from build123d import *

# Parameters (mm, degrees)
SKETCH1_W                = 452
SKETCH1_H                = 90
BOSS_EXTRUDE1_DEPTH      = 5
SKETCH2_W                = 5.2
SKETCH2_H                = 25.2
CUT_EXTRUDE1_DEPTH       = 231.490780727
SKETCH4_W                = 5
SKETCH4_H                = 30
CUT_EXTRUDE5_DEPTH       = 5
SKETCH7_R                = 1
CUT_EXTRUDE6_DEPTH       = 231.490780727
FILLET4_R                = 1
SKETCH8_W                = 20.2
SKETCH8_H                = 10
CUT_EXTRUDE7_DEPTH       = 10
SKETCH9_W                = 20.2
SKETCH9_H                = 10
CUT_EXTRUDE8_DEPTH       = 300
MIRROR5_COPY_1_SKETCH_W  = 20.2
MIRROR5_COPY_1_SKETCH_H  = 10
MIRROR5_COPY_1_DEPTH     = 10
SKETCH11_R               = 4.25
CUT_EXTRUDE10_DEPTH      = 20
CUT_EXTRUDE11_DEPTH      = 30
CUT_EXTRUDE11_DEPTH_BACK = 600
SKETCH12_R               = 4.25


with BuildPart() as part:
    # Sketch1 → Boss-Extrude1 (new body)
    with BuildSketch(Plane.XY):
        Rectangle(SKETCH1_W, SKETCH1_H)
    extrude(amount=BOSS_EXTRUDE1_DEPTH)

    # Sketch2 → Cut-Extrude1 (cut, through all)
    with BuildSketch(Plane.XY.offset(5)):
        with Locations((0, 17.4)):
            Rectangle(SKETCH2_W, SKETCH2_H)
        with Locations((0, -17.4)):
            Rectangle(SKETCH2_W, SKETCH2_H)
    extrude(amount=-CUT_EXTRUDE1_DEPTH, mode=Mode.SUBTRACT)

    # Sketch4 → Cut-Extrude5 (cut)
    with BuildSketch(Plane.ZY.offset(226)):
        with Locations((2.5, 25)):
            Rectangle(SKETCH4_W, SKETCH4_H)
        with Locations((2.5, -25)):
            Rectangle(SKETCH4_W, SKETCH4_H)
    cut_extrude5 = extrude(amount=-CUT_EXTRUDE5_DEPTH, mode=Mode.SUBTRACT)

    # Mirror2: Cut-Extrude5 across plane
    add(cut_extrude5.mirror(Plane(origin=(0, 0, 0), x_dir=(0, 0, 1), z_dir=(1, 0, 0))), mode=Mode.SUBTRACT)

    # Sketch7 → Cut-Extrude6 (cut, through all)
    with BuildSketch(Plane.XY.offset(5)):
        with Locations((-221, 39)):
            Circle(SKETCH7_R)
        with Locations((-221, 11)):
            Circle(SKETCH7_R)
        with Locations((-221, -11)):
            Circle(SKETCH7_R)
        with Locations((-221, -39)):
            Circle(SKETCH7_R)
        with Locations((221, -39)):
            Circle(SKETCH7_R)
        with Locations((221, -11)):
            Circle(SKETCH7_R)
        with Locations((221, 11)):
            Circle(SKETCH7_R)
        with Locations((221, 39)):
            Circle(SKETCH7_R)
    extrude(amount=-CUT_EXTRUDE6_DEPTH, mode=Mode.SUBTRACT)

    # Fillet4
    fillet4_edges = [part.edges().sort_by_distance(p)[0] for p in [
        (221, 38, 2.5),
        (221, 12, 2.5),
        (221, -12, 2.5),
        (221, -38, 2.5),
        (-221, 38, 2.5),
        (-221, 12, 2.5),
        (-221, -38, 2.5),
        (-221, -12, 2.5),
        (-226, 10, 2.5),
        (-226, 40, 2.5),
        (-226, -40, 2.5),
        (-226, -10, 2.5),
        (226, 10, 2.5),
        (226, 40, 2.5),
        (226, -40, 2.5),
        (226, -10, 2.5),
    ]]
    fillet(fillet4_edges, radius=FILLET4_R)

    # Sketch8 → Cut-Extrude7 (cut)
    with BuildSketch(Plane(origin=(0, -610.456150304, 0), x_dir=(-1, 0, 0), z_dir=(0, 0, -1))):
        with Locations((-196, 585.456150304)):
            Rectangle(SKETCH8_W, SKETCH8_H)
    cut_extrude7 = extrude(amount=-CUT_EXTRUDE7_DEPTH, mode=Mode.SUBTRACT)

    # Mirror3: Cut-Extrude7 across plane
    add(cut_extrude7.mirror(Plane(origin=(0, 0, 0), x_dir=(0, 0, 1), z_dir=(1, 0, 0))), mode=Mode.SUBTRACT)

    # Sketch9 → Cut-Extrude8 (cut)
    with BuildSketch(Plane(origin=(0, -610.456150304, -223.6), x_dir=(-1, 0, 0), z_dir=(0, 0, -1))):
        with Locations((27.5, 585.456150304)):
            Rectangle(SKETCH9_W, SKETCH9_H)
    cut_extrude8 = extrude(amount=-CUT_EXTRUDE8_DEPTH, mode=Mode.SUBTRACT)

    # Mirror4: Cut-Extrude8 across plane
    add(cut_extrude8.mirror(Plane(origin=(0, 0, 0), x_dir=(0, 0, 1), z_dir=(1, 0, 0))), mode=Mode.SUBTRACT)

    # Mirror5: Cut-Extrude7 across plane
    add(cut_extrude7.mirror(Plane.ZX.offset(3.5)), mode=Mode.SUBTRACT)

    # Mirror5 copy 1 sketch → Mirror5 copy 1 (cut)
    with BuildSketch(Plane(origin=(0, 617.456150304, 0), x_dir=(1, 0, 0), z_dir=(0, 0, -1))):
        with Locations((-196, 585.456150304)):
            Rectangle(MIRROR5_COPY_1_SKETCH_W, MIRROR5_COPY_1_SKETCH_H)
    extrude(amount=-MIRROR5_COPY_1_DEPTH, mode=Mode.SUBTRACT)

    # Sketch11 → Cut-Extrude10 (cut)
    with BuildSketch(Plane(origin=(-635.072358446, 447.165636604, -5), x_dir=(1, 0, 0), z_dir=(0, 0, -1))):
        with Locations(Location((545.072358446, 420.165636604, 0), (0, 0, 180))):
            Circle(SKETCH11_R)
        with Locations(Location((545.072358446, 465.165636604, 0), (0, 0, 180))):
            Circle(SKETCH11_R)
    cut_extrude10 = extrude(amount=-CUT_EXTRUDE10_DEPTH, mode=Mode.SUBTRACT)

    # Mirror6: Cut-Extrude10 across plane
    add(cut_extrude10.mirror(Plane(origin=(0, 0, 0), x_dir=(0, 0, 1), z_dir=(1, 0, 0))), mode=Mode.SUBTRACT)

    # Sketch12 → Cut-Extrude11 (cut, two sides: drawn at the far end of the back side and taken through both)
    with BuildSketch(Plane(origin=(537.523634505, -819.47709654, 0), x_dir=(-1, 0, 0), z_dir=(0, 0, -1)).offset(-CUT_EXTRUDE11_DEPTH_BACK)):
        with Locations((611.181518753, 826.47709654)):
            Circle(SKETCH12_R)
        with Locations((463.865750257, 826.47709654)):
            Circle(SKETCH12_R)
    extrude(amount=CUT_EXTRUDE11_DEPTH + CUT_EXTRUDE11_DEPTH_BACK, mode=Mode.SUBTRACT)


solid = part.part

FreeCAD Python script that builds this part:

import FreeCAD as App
import Part
import Sketcher
from FreeCAD import Vector
Q = App.Units.Quantity


def edges_at(feature, points):
    """Names of the edges that pass closest to the given points."""
    edges = feature.Shape.Edges
    near = lambda p: min(range(len(edges)), key=lambda i: edges[i].distToShape(Part.Vertex(*p))[0])
    return sorted({f"Edge{near(p) + 1}" for p in points})

doc = App.newDocument("Part")
body = doc.addObject("PartDesign::Body", "Body")

# Sketch on XY plane
sketch1 = body.newObject("Sketcher::SketchObject", "Sketch")
sketch1.AttachmentSupport = (doc.getObject("XY_Plane"), [""])
sketch1.MapMode = "FlatFace"
sketch1.addGeometry(Part.LineSegment(Vector(-226, 45, 0), Vector(-226, -45, 0)), False)
sketch1.addGeometry(Part.LineSegment(Vector(-226, -45, 0), Vector(226, -45, 0)), False)
sketch1.addGeometry(Part.LineSegment(Vector(226, -45, 0), Vector(226, 45, 0)), False)
sketch1.addGeometry(Part.LineSegment(Vector(226, 45, 0), Vector(-226, 45, 0)), False)
sketch1.addConstraint(Sketcher.Constraint("Coincident", 0, 2, 1, 1))
sketch1.addConstraint(Sketcher.Constraint("Coincident", 1, 2, 2, 1))
sketch1.addConstraint(Sketcher.Constraint("Coincident", 2, 2, 3, 1))
sketch1.addConstraint(Sketcher.Constraint("Coincident", 3, 2, 0, 1))
sketch1.addConstraint(Sketcher.Constraint("Vertical", 0))
sketch1.addConstraint(Sketcher.Constraint("Horizontal", 1))
sketch1.addConstraint(Sketcher.Constraint("Vertical", 2))
sketch1.addConstraint(Sketcher.Constraint("Horizontal", 3))
sketch1.addConstraint(Sketcher.Constraint("Symmetric", 0, 2, 2, 2, -1, 1))
sketch1.addConstraint(Sketcher.Constraint("DistanceX", 1, 1, 1, 2, Q("452 mm")))
sketch1.addConstraint(Sketcher.Constraint("DistanceY", 0, 2, 0, 1, Q("90 mm")))
pad1 = body.newObject("PartDesign::Pad", "Pad")
pad1.Profile = sketch1
pad1.Length = 5

# Sketch on XY plane
sketch2 = body.newObject("Sketcher::SketchObject", "Sketch001")
sketch2.AttachmentSupport = (doc.getObject("XY_Plane"), [""])
sketch2.MapMode = "FlatFace"
sketch2.AttachmentOffset = App.Placement(Vector(0, 0, 5), App.Rotation())
sketch2.addGeometry(Part.LineSegment(Vector(-3, 30, 0), Vector(-3, 5, 0)), False)
sketch2.addGeometry(Part.LineSegment(Vector(-3, 5, 0), Vector(3, 5, 0)), False)
sketch2.addGeometry(Part.LineSegment(Vector(3, 5, 0), Vector(3, 30, 0)), False)
sketch2.addGeometry(Part.LineSegment(Vector(3, 30, 0), Vector(-3, 30, 0)), False)
sketch2.addGeometry(Part.LineSegment(Vector(-3, -5, 0), Vector(-3, -30, 0)), False)
sketch2.addGeometry(Part.LineSegment(Vector(-3, -30, 0), Vector(3, -30, 0)), False)
sketch2.addGeometry(Part.LineSegment(Vector(3, -30, 0), Vector(3, -5, 0)), False)
sketch2.addGeometry(Part.LineSegment(Vector(3, -5, 0), Vector(-3, -5, 0)), False)
sketch2.addConstraint(Sketcher.Constraint("Coincident", 0, 2, 1, 1))
sketch2.addConstraint(Sketcher.Constraint("Coincident", 1, 2, 2, 1))
sketch2.addConstraint(Sketcher.Constraint("Coincident", 2, 2, 3, 1))
sketch2.addConstraint(Sketcher.Constraint("Coincident", 3, 2, 0, 1))
sketch2.addConstraint(Sketcher.Constraint("Coincident", 4, 2, 5, 1))
sketch2.addConstraint(Sketcher.Constraint("Coincident", 5, 2, 6, 1))
sketch2.addConstraint(Sketcher.Constraint("Coincident", 6, 2, 7, 1))
sketch2.addConstraint(Sketcher.Constraint("Coincident", 7, 2, 4, 1))
sketch2.addConstraint(Sketcher.Constraint("Vertical", 0))
sketch2.addConstraint(Sketcher.Constraint("Horizontal", 1))
sketch2.addConstraint(Sketcher.Constraint("Vertical", 2))
sketch2.addConstraint(Sketcher.Constraint("Horizontal", 3))
sketch2.addConstraint(Sketcher.Constraint("Vertical", 4))
sketch2.addConstraint(Sketcher.Constraint("Horizontal", 5))
sketch2.addConstraint(Sketcher.Constraint("Vertical", 6))
sketch2.addConstraint(Sketcher.Constraint("Horizontal", 7))
sketch2.addConstraint(Sketcher.Constraint("Symmetric", 2, 2, 4, 2, -1, 1))
sketch2.addConstraint(Sketcher.Constraint("Symmetric", 0, 2, 6, 2, -1, 1))
sketch2.addConstraint(Sketcher.Constraint("Vertical", 3, 2, 4, 2))
sketch2.addConstraint(Sketcher.Constraint("DistanceX", 1, 1, 1, 2, Q("5.2 mm")))
sketch2.addConstraint(Sketcher.Constraint("DistanceY", 0, 2, 0, 1, Q("25.2 mm")))
sketch2.addConstraint(Sketcher.Constraint("DistanceY", -1, 1, 2, 2, Q("30 mm")))
pocket1 = body.newObject("PartDesign::Pocket", "Pocket")
pocket1.Profile = sketch2
pocket1.Type = "ThroughAll"

# Sketch on YZ plane
sketch3 = body.newObject("Sketcher::SketchObject", "Sketch002")
sketch3.AttachmentSupport = (doc.getObject("YZ_Plane"), [""])
sketch3.MapMode = "FlatFace"
sketch3.AttachmentOffset = App.Placement(Vector(0, 0, -226), App.Rotation())
sketch3.addGeometry(Part.LineSegment(Vector(40, 0, 0), Vector(10, 0, 0)), False)
sketch3.addGeometry(Part.LineSegment(Vector(10, 0, 0), Vector(10, 5, 0)), False)
sketch3.addGeometry(Part.LineSegment(Vector(10, 5, 0), Vector(40, 5, 0)), False)
sketch3.addGeometry(Part.LineSegment(Vector(40, 5, 0), Vector(40, 0, 0)), False)
sketch3.addGeometry(Part.LineSegment(Vector(-10, 0, 0), Vector(-40, 0, 0)), False)
sketch3.addGeometry(Part.LineSegment(Vector(-40, 0, 0), Vector(-40, 5, 0)), False)
sketch3.addGeometry(Part.LineSegment(Vector(-40, 5, 0), Vector(-10, 5, 0)), False)
sketch3.addGeometry(Part.LineSegment(Vector(-10, 5, 0), Vector(-10, 0, 0)), False)
sketch3.addConstraint(Sketcher.Constraint("Coincident", 0, 2, 1, 1))
sketch3.addConstraint(Sketcher.Constraint("Coincident", 1, 2, 2, 1))
sketch3.addConstraint(Sketcher.Constraint("Coincident", 2, 2, 3, 1))
sketch3.addConstraint(Sketcher.Constraint("Coincident", 3, 2, 0, 1))
sketch3.addConstraint(Sketcher.Constraint("Coincident", 4, 2, 5, 1))
sketch3.addConstraint(Sketcher.Constraint("Coincident", 5, 2, 6, 1))
sketch3.addConstraint(Sketcher.Constraint("Coincident", 6, 2, 7, 1))
sketch3.addConstraint(Sketcher.Constraint("Coincident", 7, 2, 4, 1))
sketch3.addConstraint(Sketcher.Constraint("Horizontal", 0))
sketch3.addConstraint(Sketcher.Constraint("Vertical", 1))
sketch3.addConstraint(Sketcher.Constraint("Horizontal", 2))
sketch3.addConstraint(Sketcher.Constraint("Vertical", 3))
sketch3.addConstraint(Sketcher.Constraint("Horizontal", 4))
sketch3.addConstraint(Sketcher.Constraint("Vertical", 5))
sketch3.addConstraint(Sketcher.Constraint("Horizontal", 6))
sketch3.addConstraint(Sketcher.Constraint("Vertical", 7))
sketch3.addConstraint(Sketcher.Constraint("Symmetric", 3, 2, 4, 2, -1, 1))
sketch3.addConstraint(Sketcher.Constraint("Symmetric", 1, 2, 6, 2, -2))
sketch3.addConstraint(Sketcher.Constraint("PointOnObject", 0, 2, -1))
sketch3.addConstraint(Sketcher.Constraint("DistanceX", 0, 2, 0, 1, Q("30 mm")))
sketch3.addConstraint(Sketcher.Constraint("DistanceY", 1, 1, 1, 2, Q("5 mm")))
sketch3.addConstraint(Sketcher.Constraint("DistanceX", -1, 1, 0, 2, Q("10 mm")))
pocket2 = body.newObject("PartDesign::Pocket", "Pocket001")
pocket2.Profile = sketch3
pocket2.Length = 5
pocket2.Reversed = True
doc.recompute()

mirrored = body.newObject("PartDesign::Mirrored", "Mirrored")
mirrored.Originals = [pocket2]
mirrored.MirrorPlane = (doc.getObject("YZ_Plane"), [""])
body.Tip = mirrored

# Sketch on XY plane
sketch4 = body.newObject("Sketcher::SketchObject", "Sketch003")
sketch4.AttachmentSupport = (doc.getObject("XY_Plane"), [""])
sketch4.MapMode = "FlatFace"
sketch4.AttachmentOffset = App.Placement(Vector(0, 0, 5), App.Rotation())
sketch4.addGeometry(Part.Circle(Vector(-221, 39, 0), Vector(0, 0, 1), 1), False)
sketch4.addGeometry(Part.Circle(Vector(-221, 11, 0), Vector(0, 0, 1), 1), False)
sketch4.addGeometry(Part.Circle(Vector(-221, -11, 0), Vector(0, 0, 1), 1), False)
sketch4.addGeometry(Part.Circle(Vector(-221, -39, 0), Vector(0, 0, 1), 1), False)
sketch4.addGeometry(Part.Circle(Vector(221, -39, 0), Vector(0, 0, 1), 1), False)
sketch4.addGeometry(Part.Circle(Vector(221, -11, 0), Vector(0, 0, 1), 1), False)
sketch4.addGeometry(Part.Circle(Vector(221, 11, 0), Vector(0, 0, 1), 1), False)
sketch4.addGeometry(Part.Circle(Vector(221, 39, 0), Vector(0, 0, 1), 1), False)
sketch4.addConstraint(Sketcher.Constraint("Equal", 0, 1))
sketch4.addConstraint(Sketcher.Constraint("Equal", 1, 2))
sketch4.addConstraint(Sketcher.Constraint("Equal", 2, 3))
sketch4.addConstraint(Sketcher.Constraint("Equal", 3, 4))
sketch4.addConstraint(Sketcher.Constraint("Equal", 4, 5))
sketch4.addConstraint(Sketcher.Constraint("Equal", 5, 6))
sketch4.addConstraint(Sketcher.Constraint("Equal", 6, 7))
sketch4.addConstraint(Sketcher.Constraint("Symmetric", 0, 3, 4, 3, -1, 1))
sketch4.addConstraint(Sketcher.Constraint("Symmetric", 1, 3, 5, 3, -1, 1))
sketch4.addConstraint(Sketcher.Constraint("Symmetric", 2, 3, 6, 3, -1, 1))
sketch4.addConstraint(Sketcher.Constraint("Symmetric", 3, 3, 7, 3, -1, 1))
sketch4.addConstraint(Sketcher.Constraint("Symmetric", 3, 3, 4, 3, -2))
sketch4.addConstraint(Sketcher.Constraint("Symmetric", 2, 3, 5, 3, -2))
sketch4.addConstraint(Sketcher.Constraint("Vertical", 0, 3, 1, 3))
sketch4.addConstraint(Sketcher.Constraint("Diameter", 0, Q("2 mm")))
sketch4.addConstraint(Sketcher.Constraint("DistanceX", 0, 3, -1, 1, Q("221 mm")))
sketch4.addConstraint(Sketcher.Constraint("DistanceY", -1, 1, 0, 3, Q("39 mm")))
sketch4.addConstraint(Sketcher.Constraint("DistanceY", -1, 1, 1, 3, Q("11 mm")))
pocket3 = body.newObject("PartDesign::Pocket", "Pocket002")
pocket3.Profile = sketch4
pocket3.Type = "ThroughAll"
doc.recompute()

fillet = body.newObject("PartDesign::Fillet", "Fillet")
fillet.Base = (pocket3, edges_at(pocket3, [
    (221, 38, 2.5),
    (221, 12, 2.5),
    (221, -12, 2.5),
    (221, -38, 2.5),
    (-221, 38, 2.5),
    (-221, 12, 2.5),
    (-221, -38, 2.5),
    (-221, -12, 2.5),
    (-226, 10, 2.5),
    (-226, 40, 2.5),
    (-226, -40, 2.5),
    (-226, -10, 2.5),
    (226, 10, 2.5),
    (226, 40, 2.5),
    (226, -40, 2.5),
    (226, -10, 2.5),
]))
fillet.Radius = 1

# Sketch on XY plane
sketch5 = body.newObject("Sketcher::SketchObject", "Sketch004")
sketch5.AttachmentSupport = (doc.getObject("XY_Plane"), [""])
sketch5.MapMode = "FlatFace"
sketch5.addGeometry(Part.LineSegment(Vector(206, -20, 0), Vector(206, -30, 0)), False)
sketch5.addGeometry(Part.LineSegment(Vector(206, -30, 0), Vector(186, -30, 0)), False)
sketch5.addGeometry(Part.LineSegment(Vector(186, -30, 0), Vector(186, -20, 0)), False)
sketch5.addGeometry(Part.LineSegment(Vector(186, -20, 0), Vector(206, -20, 0)), False)
sketch5.addConstraint(Sketcher.Constraint("Coincident", 0, 2, 1, 1))
sketch5.addConstraint(Sketcher.Constraint("Coincident", 1, 2, 2, 1))
sketch5.addConstraint(Sketcher.Constraint("Coincident", 2, 2, 3, 1))
sketch5.addConstraint(Sketcher.Constraint("Coincident", 3, 2, 0, 1))
sketch5.addConstraint(Sketcher.Constraint("Vertical", 0))
sketch5.addConstraint(Sketcher.Constraint("Horizontal", 1))
sketch5.addConstraint(Sketcher.Constraint("Vertical", 2))
sketch5.addConstraint(Sketcher.Constraint("Horizontal", 3))
sketch5.addConstraint(Sketcher.Constraint("DistanceY", 0, 2, 0, 1, Q("10 mm")))
sketch5.addConstraint(Sketcher.Constraint("DistanceX", 1, 2, 1, 1, Q("20.2 mm")))
sketch5.addConstraint(Sketcher.Constraint("DistanceY", 0, 2, -1, 1, Q("30 mm")))
sketch5.addConstraint(Sketcher.Constraint("DistanceX", -1, 1, 0, 2, Q("206.1 mm")))
pocket4 = body.newObject("PartDesign::Pocket", "Pocket003")
pocket4.Profile = sketch5
pocket4.Length = 10
pocket4.Reversed = True
doc.recompute()

mirrored2 = body.newObject("PartDesign::Mirrored", "Mirrored001")
mirrored2.Originals = [pocket4]
mirrored2.MirrorPlane = (doc.getObject("YZ_Plane"), [""])
body.Tip = mirrored2

# Sketch on XY plane
sketch6 = body.newObject("Sketcher::SketchObject", "Sketch005")
sketch6.AttachmentSupport = (doc.getObject("XY_Plane"), [""])
sketch6.MapMode = "FlatFace"
sketch6.AttachmentOffset = App.Placement(Vector(0, 0, -223.6), App.Rotation())
sketch6.addGeometry(Part.LineSegment(Vector(-17, -20, 0), Vector(-17, -30, 0)), False)
sketch6.addGeometry(Part.LineSegment(Vector(-17, -30, 0), Vector(-38, -30, 0)), False)
sketch6.addGeometry(Part.LineSegment(Vector(-38, -30, 0), Vector(-38, -20, 0)), False)
sketch6.addGeometry(Part.LineSegment(Vector(-38, -20, 0), Vector(-17, -20, 0)), False)
sketch6.addConstraint(Sketcher.Constraint("Coincident", 0, 2, 1, 1))
sketch6.addConstraint(Sketcher.Constraint("Coincident", 1, 2, 2, 1))
sketch6.addConstraint(Sketcher.Constraint("Coincident", 2, 2, 3, 1))
sketch6.addConstraint(Sketcher.Constraint("Coincident", 3, 2, 0, 1))
sketch6.addConstraint(Sketcher.Constraint("Vertical", 0))
sketch6.addConstraint(Sketcher.Constraint("Horizontal", 1))
sketch6.addConstraint(Sketcher.Constraint("Vertical", 2))
sketch6.addConstraint(Sketcher.Constraint("Horizontal", 3))
sketch6.addConstraint(Sketcher.Constraint("DistanceY", 0, 2, 0, 1, Q("10 mm")))
sketch6.addConstraint(Sketcher.Constraint("DistanceX", 1, 2, 1, 1, Q("20.2 mm")))
sketch6.addConstraint(Sketcher.Constraint("DistanceY", 0, 2, -1, 1, Q("30 mm")))
sketch6.addConstraint(Sketcher.Constraint("DistanceX", 0, 2, -1, 1, Q("17.4 mm")))
pocket5 = body.newObject("PartDesign::Pocket", "Pocket004")
pocket5.Profile = sketch6
pocket5.Length = 300
pocket5.Reversed = True
doc.recompute()

mirrored3 = body.newObject("PartDesign::Mirrored", "Mirrored002")
mirrored3.Originals = [pocket5]
mirrored3.MirrorPlane = (doc.getObject("YZ_Plane"), [""])
body.Tip = mirrored3
doc.recompute()

datumplane = body.newObject("PartDesign::Plane", "DatumPlane")
datumplane.AttachmentSupport = (doc.getObject("XZ_Plane"), [""])
datumplane.MapMode = "FlatFace"
datumplane.AttachmentOffset = App.Placement(Vector(0, 0, -3.5), App.Rotation())
mirrored4 = body.newObject("PartDesign::Mirrored", "Mirrored003")
mirrored4.Originals = [pocket4]
mirrored4.MirrorPlane = (datumplane, [""])
body.Tip = mirrored4

# Sketch on XY plane
sketch7 = body.newObject("Sketcher::SketchObject", "Sketch006")
sketch7.AttachmentSupport = (doc.getObject("XY_Plane"), [""])
sketch7.MapMode = "FlatFace"
sketch7.addGeometry(Part.LineSegment(Vector(-206, 27, 0), Vector(-206, 37, 0)), False)
sketch7.addGeometry(Part.LineSegment(Vector(-206, 37, 0), Vector(-186, 37, 0)), False)
sketch7.addGeometry(Part.LineSegment(Vector(-186, 37, 0), Vector(-186, 27, 0)), False)
sketch7.addGeometry(Part.LineSegment(Vector(-186, 27, 0), Vector(-206, 27, 0)), False)
sketch7.addConstraint(Sketcher.Constraint("Coincident", 0, 2, 1, 1))
sketch7.addConstraint(Sketcher.Constraint("Coincident", 1, 2, 2, 1))
sketch7.addConstraint(Sketcher.Constraint("Coincident", 2, 2, 3, 1))
sketch7.addConstraint(Sketcher.Constraint("Coincident", 3, 2, 0, 1))
sketch7.addConstraint(Sketcher.Constraint("Vertical", 0))
sketch7.addConstraint(Sketcher.Constraint("Horizontal", 1))
sketch7.addConstraint(Sketcher.Constraint("Vertical", 2))
sketch7.addConstraint(Sketcher.Constraint("Horizontal", 3))
sketch7.addConstraint(Sketcher.Constraint("DistanceY", 0, 1, 0, 2, Q("10 mm")))
sketch7.addConstraint(Sketcher.Constraint("DistanceX", 1, 1, 1, 2, Q("20.2 mm")))
sketch7.addConstraint(Sketcher.Constraint("DistanceY", -1, 1, 0, 2, Q("37 mm")))
sketch7.addConstraint(Sketcher.Constraint("DistanceX", 0, 2, -1, 1, Q("206.1 mm")))
pocket6 = body.newObject("PartDesign::Pocket", "Pocket005")
pocket6.Profile = sketch7
pocket6.Length = 10
pocket6.Reversed = True

# Sketch on XY plane
sketch8 = body.newObject("Sketcher::SketchObject", "Sketch007")
sketch8.AttachmentSupport = (doc.getObject("XY_Plane"), [""])
sketch8.MapMode = "FlatFace"
sketch8.AttachmentOffset = App.Placement(Vector(0, 0, -5), App.Rotation())
sketch8.addGeometry(Part.Circle(Vector(-90, 27, 0), Vector(0, 0, 1), 4.2), False)
sketch8.addGeometry(Part.Circle(Vector(-90, -18, 0), Vector(0, 0, 1), 4.2), False)
sketch8.addConstraint(Sketcher.Constraint("Equal", 0, 1))
sketch8.addConstraint(Sketcher.Constraint("Vertical", 0, 3, 1, 3))
sketch8.addConstraint(Sketcher.Constraint("Diameter", 0, Q("8.5 mm")))
sketch8.addConstraint(Sketcher.Constraint("DistanceX", 0, 3, -1, 1, Q("90 mm")))
sketch8.addConstraint(Sketcher.Constraint("DistanceY", -1, 1, 0, 3, Q("27 mm")))
sketch8.addConstraint(Sketcher.Constraint("DistanceY", 1, 3, -1, 1, Q("18 mm")))
pocket7 = body.newObject("PartDesign::Pocket", "Pocket006")
pocket7.Profile = sketch8
pocket7.Length = 20
pocket7.Reversed = True
doc.recompute()

mirrored5 = body.newObject("PartDesign::Mirrored", "Mirrored004")
mirrored5.Originals = [pocket7]
mirrored5.MirrorPlane = (doc.getObject("YZ_Plane"), [""])
body.Tip = mirrored5

# Sketch on XY plane
sketch9 = body.newObject("Sketcher::SketchObject", "Sketch008")
sketch9.AttachmentSupport = (doc.getObject("XY_Plane"), [""])
sketch9.MapMode = "FlatFace"
sketch9.addGeometry(Part.Circle(Vector(-73.7, 7, 0), Vector(0, 0, 1), 4.2), False)
sketch9.addGeometry(Part.Circle(Vector(73.7, 7, 0), Vector(0, 0, 1), 4.2), False)
sketch9.addConstraint(Sketcher.Constraint("Equal", 0, 1))
sketch9.addConstraint(Sketcher.Constraint("Symmetric", 0, 3, 1, 3, -2))
sketch9.addConstraint(Sketcher.Constraint("Diameter", 0, Q("8.5 mm")))
sketch9.addConstraint(Sketcher.Constraint("DistanceY", -1, 1, 0, 3, Q("7 mm")))
sketch9.addConstraint(Sketcher.Constraint("DistanceX", 0, 3, 1, 3, Q("147.315768 mm")))
pocket8 = body.newObject("PartDesign::Pocket", "Pocket007")
pocket8.Profile = sketch9
pocket8.Type = "ThroughAll"
pocket8.Midplane = True

doc.recompute()
